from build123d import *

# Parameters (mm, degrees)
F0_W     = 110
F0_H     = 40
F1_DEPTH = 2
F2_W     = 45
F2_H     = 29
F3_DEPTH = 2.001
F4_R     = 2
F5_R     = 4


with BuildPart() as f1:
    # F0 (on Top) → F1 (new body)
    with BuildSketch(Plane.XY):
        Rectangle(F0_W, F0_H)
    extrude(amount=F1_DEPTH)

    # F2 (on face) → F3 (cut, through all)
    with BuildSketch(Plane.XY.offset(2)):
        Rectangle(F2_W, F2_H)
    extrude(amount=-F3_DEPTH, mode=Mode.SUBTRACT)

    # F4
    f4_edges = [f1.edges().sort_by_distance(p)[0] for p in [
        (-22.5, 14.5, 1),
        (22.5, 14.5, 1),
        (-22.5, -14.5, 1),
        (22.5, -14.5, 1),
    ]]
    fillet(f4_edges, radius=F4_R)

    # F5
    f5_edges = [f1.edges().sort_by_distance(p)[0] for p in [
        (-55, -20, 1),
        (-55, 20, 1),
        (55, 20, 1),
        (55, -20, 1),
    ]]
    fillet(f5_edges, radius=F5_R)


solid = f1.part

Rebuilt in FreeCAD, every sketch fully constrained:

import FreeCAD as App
import Part
import Sketcher


def edges_at(feature, points):
    """Names of the edges that pass closest to the given points."""
    edges = feature.Shape.Edges
    near = lambda p: min(range(len(edges)), key=lambda i: edges[i].distToShape(Part.Vertex(*p))[0])
    return sorted({f"Edge{near(p) + 1}" for p in points})

doc = App.newDocument("Part")
body = doc.addObject("PartDesign::Body", "Body")

# Sketch on XY plane
sketch1 = doc.addObject("Sketcher::SketchObject", "Sketch")
body.addObject(sketch1)
sketch1.AttachmentSupport = (doc.XY_Plane, [""])
sketch1.MapMode = "FlatFace"
sketch1.addGeometry([
    Part.LineSegment(App.Vector(-55, 20, 0), App.Vector(-55, -20, 0)),
    Part.LineSegment(App.Vector(-55, -20, 0), App.Vector(55, -20, 0)),
    Part.LineSegment(App.Vector(55, -20, 0), App.Vector(55, 20, 0)),
    Part.LineSegment(App.Vector(55, 20, 0), App.Vector(-55, 20, 0)),
], False)
sketch1.addConstraint([
    Sketcher.Constraint("Coincident", 0, 2, 1, 1),
    Sketcher.Constraint("Coincident", 1, 2, 2, 1),
    Sketcher.Constraint("Coincident", 2, 2, 3, 1),
    Sketcher.Constraint("Coincident", 3, 2, 0, 1),
    Sketcher.Constraint("Vertical", 0),
    Sketcher.Constraint("Horizontal", 1),
    Sketcher.Constraint("Vertical", 2),
    Sketcher.Constraint("Horizontal", 3),
    Sketcher.Constraint("Symmetric", 0, 2, 2, 2, -1, 1),
    Sketcher.Constraint("DistanceX", 1, 1, 1, 2, 110.0),
    Sketcher.Constraint("DistanceY", 0, 2, 0, 1, 40.0),
])
pad1 = doc.addObject("PartDesign::Pad", "Pad")
body.addObject(pad1)
pad1.Profile = sketch1
pad1.Length = 2

# Sketch on XY plane
sketch2 = doc.addObject("Sketcher::SketchObject", "Sketch001")
body.addObject(sketch2)
sketch2.AttachmentSupport = (doc.XY_Plane, [""])
sketch2.MapMode = "FlatFace"
sketch2.AttachmentOffset = App.Placement(App.Vector(0, 0, 2), App.Rotation())
sketch2.addGeometry([
    Part.LineSegment(App.Vector(-22, 14, 0), App.Vector(-22, -14, 0)),
    Part.LineSegment(App.Vector(-22, -14, 0), App.Vector(22, -14, 0)),
    Part.LineSegment(App.Vector(22, -14, 0), App.Vector(22, 14, 0)),
    Part.LineSegment(App.Vector(22, 14, 0), App.Vector(-22, 14, 0)),
], False)
sketch2.addConstraint([
    Sketcher.Constraint("Coincident", 0, 2, 1, 1),
    Sketcher.Constraint("Coincident", 1, 2, 2, 1),
    Sketcher.Constraint("Coincident", 2, 2, 3, 1),
    Sketcher.Constraint("Coincident", 3, 2, 0, 1),
    Sketcher.Constraint("Vertical", 0),
    Sketcher.Constraint("Horizontal", 1),
    Sketcher.Constraint("Vertical", 2),
    Sketcher.Constraint("Horizontal", 3),
    Sketcher.Constraint("Symmetric", 0, 2, 2, 2, -1, 1),
    Sketcher.Constraint("DistanceX", 1, 1, 1, 2, 45.0),
    Sketcher.Constraint("DistanceY", 0, 2, 0, 1, 29.0),
])
pocket1 = doc.addObject("PartDesign::Pocket", "Pocket")
body.addObject(pocket1)
pocket1.Profile = sketch2
pocket1.Type = "ThroughAll"
doc.recompute()

fillet = doc.addObject("PartDesign::Fillet", "Fillet")
body.addObject(fillet)
fillet.Base = (pocket1, edges_at(pocket1, [
    (-22.5, 14.5, 1),
    (22.5, 14.5, 1),
    (-22.5, -14.5, 1),
    (22.5, -14.5, 1),
]))
fillet.Radius = 2
doc.recompute()

fillet2 = doc.addObject("PartDesign::Fillet", "Fillet001")
body.addObject(fillet2)
fillet2.Base = (fillet, edges_at(fillet, [
    (-55, -20, 1),
    (-55, 20, 1),
    (55, 20, 1),
    (55, -20, 1),
]))
fillet2.Radius = 4

doc.recompute()
